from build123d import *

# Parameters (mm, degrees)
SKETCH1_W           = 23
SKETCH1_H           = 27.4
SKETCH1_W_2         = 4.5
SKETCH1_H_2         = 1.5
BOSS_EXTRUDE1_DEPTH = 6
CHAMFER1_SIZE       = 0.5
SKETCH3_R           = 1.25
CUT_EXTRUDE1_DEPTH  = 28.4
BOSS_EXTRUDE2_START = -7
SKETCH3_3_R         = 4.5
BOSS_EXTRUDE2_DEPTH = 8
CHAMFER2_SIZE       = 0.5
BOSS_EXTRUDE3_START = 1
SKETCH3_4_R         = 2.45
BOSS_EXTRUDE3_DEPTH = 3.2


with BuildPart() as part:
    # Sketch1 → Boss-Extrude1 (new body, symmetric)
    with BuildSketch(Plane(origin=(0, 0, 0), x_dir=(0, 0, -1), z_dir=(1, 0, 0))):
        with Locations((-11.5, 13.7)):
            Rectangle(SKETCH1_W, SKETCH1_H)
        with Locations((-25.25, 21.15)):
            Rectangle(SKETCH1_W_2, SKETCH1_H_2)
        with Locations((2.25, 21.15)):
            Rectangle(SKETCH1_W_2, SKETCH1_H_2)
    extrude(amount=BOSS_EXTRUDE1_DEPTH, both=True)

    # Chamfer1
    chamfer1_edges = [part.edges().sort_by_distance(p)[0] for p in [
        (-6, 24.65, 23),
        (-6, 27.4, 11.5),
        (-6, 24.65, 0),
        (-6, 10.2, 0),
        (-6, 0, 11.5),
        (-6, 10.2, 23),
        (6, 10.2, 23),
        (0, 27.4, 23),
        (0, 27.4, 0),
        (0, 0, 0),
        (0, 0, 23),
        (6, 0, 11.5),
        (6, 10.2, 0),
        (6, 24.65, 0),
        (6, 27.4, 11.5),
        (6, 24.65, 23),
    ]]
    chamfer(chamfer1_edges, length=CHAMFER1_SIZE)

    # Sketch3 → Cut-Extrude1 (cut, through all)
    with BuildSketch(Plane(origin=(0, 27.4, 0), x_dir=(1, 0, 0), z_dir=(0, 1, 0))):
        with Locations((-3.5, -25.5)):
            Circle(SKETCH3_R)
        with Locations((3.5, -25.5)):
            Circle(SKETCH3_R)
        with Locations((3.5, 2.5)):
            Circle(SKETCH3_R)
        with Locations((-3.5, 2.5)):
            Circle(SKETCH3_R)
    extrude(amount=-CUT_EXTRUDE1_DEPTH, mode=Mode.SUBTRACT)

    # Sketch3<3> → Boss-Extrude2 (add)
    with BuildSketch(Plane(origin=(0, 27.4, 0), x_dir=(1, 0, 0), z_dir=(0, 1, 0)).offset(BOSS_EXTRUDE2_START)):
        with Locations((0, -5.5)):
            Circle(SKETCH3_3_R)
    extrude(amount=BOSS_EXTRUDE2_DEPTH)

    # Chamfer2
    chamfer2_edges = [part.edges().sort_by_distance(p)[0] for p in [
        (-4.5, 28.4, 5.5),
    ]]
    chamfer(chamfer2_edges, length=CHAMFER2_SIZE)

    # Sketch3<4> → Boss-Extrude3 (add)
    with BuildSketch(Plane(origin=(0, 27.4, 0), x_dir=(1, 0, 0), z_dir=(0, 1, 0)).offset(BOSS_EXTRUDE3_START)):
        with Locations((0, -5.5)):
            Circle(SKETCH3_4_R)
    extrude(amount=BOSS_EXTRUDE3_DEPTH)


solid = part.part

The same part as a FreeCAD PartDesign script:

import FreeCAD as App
import Part
import Sketcher
Q = App.Units.Quantity


def edges_at(feature, points):
    """Names of the edges that pass closest to the given points."""
    edges = feature.Shape.Edges
    near = lambda p: min(range(len(edges)), key=lambda i: edges[i].distToShape(Part.Vertex(*p))[0])
    return sorted({f"Edge{near(p) + 1}" for p in points})

doc = App.newDocument("Part")
params = doc.addObject("Spreadsheet::Sheet", "Params")
for row, (alias, value) in enumerate([
    ("sketch1_height", "23 mm"),
    ("sketch1_width", "20.4 mm"),
    ("sketch1_width2", "1.5 mm"),
    ("sketch1_width3", "5.5 mm"),
    ("sketch1_height2", "4.5 mm"),
    ("pad1_length", "12 mm"),
    ("chamfer_size", "0.5 mm"),
    ("sketch2_diameter", "2.5 mm"),
    ("sketch3_diameter", "9 mm"),
    ("pad2_length", "8 mm"),
    ("chamfer2_size", "0.5 mm"),
    ("sketch4_diameter", "4.9 mm"),
    ("pad3_length", "3.2 mm"),
], start=1):
    params.set(f"A{row}", alias)
    params.set(f"B{row}", "=" + value)
    params.setAlias(f"B{row}", alias)

body = doc.addObject("PartDesign::Body", "Body")

# Sketch on YZ plane
sketch1 = body.newObject("Sketcher::SketchObject", "Sketch")
sketch1.AttachmentSupport = (doc.getObject("YZ_Plane"), [""])
sketch1.MapMode = "FlatFace"
sketch1.addGeometry([
    Part.LineSegment(App.Vector(20.4, 23, 0), App.Vector(0, 23, 0)),  # 0
    Part.LineSegment(App.Vector(0, 23, 0), App.Vector(0, 0, 0)),  # 1
    Part.LineSegment(App.Vector(0, 0, 0), App.Vector(20.4, 0, 0)),  # 2
    Part.LineSegment(App.Vector(20.4, 0, 0), App.Vector(20.4, -4.5, 0)),  # 3
    Part.LineSegment(App.Vector(20.4, -4.5, 0), App.Vector(21.9, -4.5, 0)),  # 4
    Part.LineSegment(App.Vector(21.9, -4.5, 0), App.Vector(21.9, 0, 0)),  # 5
    Part.LineSegment(App.Vector(21.9, 0, 0), App.Vector(27.4, 0, 0)),  # 6
    Part.LineSegment(App.Vector(27.4, 0, 0), App.Vector(27.4, 23, 0)),  # 7
    Part.LineSegment(App.Vector(27.4, 23, 0), App.Vector(21.9, 23, 0)),  # 8
    Part.LineSegment(App.Vector(21.9, 23, 0), App.Vector(21.9, 27.5, 0)),  # 9
    Part.LineSegment(App.Vector(21.9, 27.5, 0), App.Vector(20.4, 27.5, 0)),  # 10
    Part.LineSegment(App.Vector(20.4, 27.5, 0), App.Vector(20.4, 23, 0)),  # 11
], False)
sketch1.addConstraint([
    Sketcher.Constraint("Coincident", 0, 2, 1, 1),
    Sketcher.Constraint("Coincident", 1, 2, 2, 1),
    Sketcher.Constraint("Coincident", 2, 2, 3, 1),
    Sketcher.Constraint("Coincident", 3, 2, 4, 1),
    Sketcher.Constraint("Coincident", 4, 2, 5, 1),
    Sketcher.Constraint("Coincident", 5, 2, 6, 1),
    Sketcher.Constraint("Coincident", 6, 2, 7, 1),
    Sketcher.Constraint("Coincident", 7, 2, 8, 1),
    Sketcher.Constraint("Coincident", 8, 2, 9, 1),
    Sketcher.Constraint("Coincident", 9, 2, 10, 1),
    Sketcher.Constraint("Coincident", 10, 2, 11, 1),
    Sketcher.Constraint("Coincident", 11, 2, 0, 1),
    Sketcher.Constraint("Horizontal", 0),
    Sketcher.Constraint("Vertical", 1),
    Sketcher.Constraint("Horizontal", 2),
    Sketcher.Constraint("Vertical", 3),
    Sketcher.Constraint("Horizontal", 4),
    Sketcher.Constraint("Vertical", 5),
    Sketcher.Constraint("Horizontal", 6),
    Sketcher.Constraint("Vertical", 7),
    Sketcher.Constraint("Horizontal", 8),
    Sketcher.Constraint("Vertical", 9),
    Sketcher.Constraint("Horizontal", 10),
    Sketcher.Constraint("Vertical", 11),
    Sketcher.Constraint("Coincident", 1, 2, -1, 1),
    Sketcher.Constraint("PointOnObject", 5, 2, -1),
    Sketcher.Constraint("Horizontal", 0, 2, 7, 2),
    Sketcher.Constraint("Vertical", 5, 2, 8, 2),
    Sketcher.Constraint("Vertical", 3, 2, 10, 2),
    Sketcher.Constraint("Equal", 5, 9),
    Sketcher.Constraint("DistanceY", 1, 2, 1, 1, Q("23 mm")),
    Sketcher.Constraint("DistanceX", 0, 2, 0, 1, Q("20.4 mm")),
    Sketcher.Constraint("DistanceX", 4, 1, 4, 2, Q("1.5 mm")),
    Sketcher.Constraint("DistanceX", 6, 1, 6, 2, Q("5.5 mm")),
    Sketcher.Constraint("DistanceY", 3, 2, 3, 1, Q("4.5 mm")),
])
sketch1.setExpression("Constraints[30]", "Params.sketch1_height")
sketch1.setExpression("Constraints[31]", "Params.sketch1_width")
sketch1.setExpression("Constraints[32]", "Params.sketch1_width2")
sketch1.setExpression("Constraints[33]", "Params.sketch1_width3")
sketch1.setExpression("Constraints[34]", "Params.sketch1_height2")
pad1 = body.newObject("PartDesign::Pad", "Pad")
pad1.Profile = sketch1
pad1.setExpression("Length", "Params.pad1_length")
pad1.Midplane = True
doc.recompute()

chamfer = body.newObject("PartDesign::Chamfer", "Chamfer")
chamfer.Base = (pad1, edges_at(pad1, [
    (-6, 24.65, 23),
    (-6, 27.4, 11.5),
    (-6, 24.65, 0),
    (-6, 10.2, 0),
    (-6, 0, 11.5),
    (-6, 10.2, 23),
    (6, 10.2, 23),
    (0, 27.4, 23),
    (0, 27.4, 0),
    (0, 0, 0),
    (0, 0, 23),
    (6, 0, 11.5),
    (6, 10.2, 0),
    (6, 24.65, 0),
    (6, 27.4, 11.5),
    (6, 24.65, 23),
]))
chamfer.setExpression("Size", "Params.chamfer_size")

# Sketch on XZ plane
sketch2 = body.newObject("Sketcher::SketchObject", "Sketch001")
sketch2.AttachmentSupport = (doc.getObject("XZ_Plane"), [""])
sketch2.MapMode = "FlatFace"
sketch2.AttachmentOffset = App.Placement(App.Vector(0, 0, -27.4), App.Rotation())
sketch2.addGeometry([
    Part.Circle(App.Vector(-3.5, 25.5, 0), App.Vector(0, 0, 1), 1.25),
    Part.Circle(App.Vector(3.5, 25.5, 0), App.Vector(0, 0, 1), 1.25),
    Part.Circle(App.Vector(3.5, -2.5, 0), App.Vector(0, 0, 1), 1.25),
    Part.Circle(App.Vector(-3.5, -2.5, 0), App.Vector(0, 0, 1), 1.25),
], False)
sketch2.addConstraint([
    Sketcher.Constraint("Equal", 0, 1),
    Sketcher.Constraint("Equal", 1, 2),
    Sketcher.Constraint("Equal", 2, 3),
    Sketcher.Constraint("Symmetric", 0, 3, 1, 3, -2),
    Sketcher.Constraint("Symmetric", 2, 3, 3, 3, -2),
    Sketcher.Constraint("Vertical", 1, 3, 2, 3),
    Sketcher.Constraint("Diameter", 0, Q("2.5 mm")),
    Sketcher.Constraint("DistanceX", 0, 3, 1, 3, Q("7 mm")),
    Sketcher.Constraint("DistanceY", 2, 3, 1, 3, Q("28 mm")),
    Sketcher.Constraint("DistanceY", -1, 1, 0, 3, Q("25.5 mm")),
])
sketch2.setExpression("Constraints[6]", "Params.sketch2_diameter")
pocket1 = body.newObject("PartDesign::Pocket", "Pocket")
pocket1.Profile = sketch2
pocket1.Type = "ThroughAll"
pocket1.Reversed = True

# Sketch on XZ plane
sketch3 = body.newObject("Sketcher::SketchObject", "Sketch002")
sketch3.AttachmentSupport = (doc.getObject("XZ_Plane"), [""])
sketch3.MapMode = "FlatFace"
sketch3.AttachmentOffset = App.Placement(App.Vector(0, 0, -20.4), App.Rotation())
sketch3.addGeometry(Part.Circle(App.Vector(0, 5.5, 0), App.Vector(0, 0, 1), 4.5), False)
sketch3.addConstraint([
    Sketcher.Constraint("PointOnObject", 0, 3, -2),
    Sketcher.Constraint("Diameter", 0, Q("9 mm")),
    Sketcher.Constraint("DistanceY", -1, 1, 0, 3, Q("5.5 mm")),
])
sketch3.setExpression("Constraints[1]", "Params.sketch3_diameter")
pad2 = body.newObject("PartDesign::Pad", "Pad001")
pad2.Profile = sketch3
pad2.setExpression("Length", "Params.pad2_length")
pad2.Reversed = True
doc.recompute()

chamfer2 = body.newObject("PartDesign::Chamfer", "Chamfer001")
chamfer2.Base = (pad2, edges_at(pad2, [(-4.5, 28.4, 5.5)]))
chamfer2.setExpression("Size", "Params.chamfer2_size")

# Sketch on XZ plane
sketch4 = body.newObject("Sketcher::SketchObject", "Sketch003")
sketch4.AttachmentSupport = (doc.getObject("XZ_Plane"), [""])
sketch4.MapMode = "FlatFace"
sketch4.AttachmentOffset = App.Placement(App.Vector(0, 0, -28.4), App.Rotation())
sketch4.addGeometry(Part.Circle(App.Vector(0, 5.5, 0), App.Vector(0, 0, 1), 2.45), False)
sketch4.addConstraint([
    Sketcher.Constraint("PointOnObject", 0, 3, -2),
    Sketcher.Constraint("Diameter", 0, Q("4.9 mm")),
    Sketcher.Constraint("DistanceY", -1, 1, 0, 3, Q("5.5 mm")),
])
sketch4.setExpression("Constraints[1]", "Params.sketch4_diameter")
pad3 = body.newObject("PartDesign::Pad", "Pad002")
pad3.Profile = sketch4
pad3.setExpression("Length", "Params.pad3_length")
pad3.Reversed = True

doc.recompute()
